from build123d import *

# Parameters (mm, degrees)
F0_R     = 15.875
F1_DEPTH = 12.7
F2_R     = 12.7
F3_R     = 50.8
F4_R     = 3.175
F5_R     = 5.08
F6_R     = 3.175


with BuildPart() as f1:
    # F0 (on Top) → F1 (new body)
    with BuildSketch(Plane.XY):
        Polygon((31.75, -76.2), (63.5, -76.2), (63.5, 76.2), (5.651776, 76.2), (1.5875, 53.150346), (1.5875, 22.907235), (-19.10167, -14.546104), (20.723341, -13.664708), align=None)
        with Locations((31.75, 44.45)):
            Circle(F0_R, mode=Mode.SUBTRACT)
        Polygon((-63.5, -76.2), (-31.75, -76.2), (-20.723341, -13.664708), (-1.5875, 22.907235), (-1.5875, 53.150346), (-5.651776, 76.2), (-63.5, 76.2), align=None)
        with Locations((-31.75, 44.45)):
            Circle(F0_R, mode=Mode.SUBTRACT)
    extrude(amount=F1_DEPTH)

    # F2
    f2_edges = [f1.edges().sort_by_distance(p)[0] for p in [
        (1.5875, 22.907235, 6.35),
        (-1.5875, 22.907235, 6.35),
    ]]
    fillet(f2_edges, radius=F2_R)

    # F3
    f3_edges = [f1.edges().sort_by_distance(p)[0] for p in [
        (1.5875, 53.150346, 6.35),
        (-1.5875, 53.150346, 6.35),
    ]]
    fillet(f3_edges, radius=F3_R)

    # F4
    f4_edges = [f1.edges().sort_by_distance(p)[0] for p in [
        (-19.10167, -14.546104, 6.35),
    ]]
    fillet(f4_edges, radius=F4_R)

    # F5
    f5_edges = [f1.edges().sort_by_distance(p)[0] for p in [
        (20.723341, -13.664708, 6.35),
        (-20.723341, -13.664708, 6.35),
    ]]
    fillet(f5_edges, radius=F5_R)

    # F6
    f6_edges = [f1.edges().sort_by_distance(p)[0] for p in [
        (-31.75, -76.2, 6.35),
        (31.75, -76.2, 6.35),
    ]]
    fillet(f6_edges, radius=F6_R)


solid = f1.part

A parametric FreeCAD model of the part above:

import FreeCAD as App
import Part
import Sketcher
Q = App.Units.Quantity


def edges_at(feature, points):
    """Names of the edges that pass closest to the given points."""
    edges = feature.Shape.Edges
    near = lambda p: min(range(len(edges)), key=lambda i: edges[i].distToShape(Part.Vertex(*p))[0])
    return sorted({f"Edge{near(p) + 1}" for p in points})


def add_polygon(sketch, points):
    """Adds a closed chain of lines whose ends are joined by coincident constraints."""
    first, n = sketch.GeometryCount, len(points)
    for a, b in zip(points, points[1:] + points[:1]):
        sketch.addGeometry(Part.LineSegment(App.Vector(*a, 0), App.Vector(*b, 0)), False)
    for i in range(n):
        sketch.addConstraint(Sketcher.Constraint("Coincident", first + i, 2, first + (i + 1) % n, 1))

doc = App.newDocument("Part")
body = doc.addObject("PartDesign::Body", "Body")
body.AllowCompound = True

sketch1 = doc.addObject("Sketcher::SketchObject", "Sketch")
body.addObject(sketch1)
sketch1.AttachmentSupport = (doc.XY_Plane, [""])
sketch1.MapMode = "FlatFace"
add_polygon(sketch1, [(32, -76), (64, -76), (64, 76), (6, 76), (2, 53), (2, 23), (-19, -15), (21, -14)])
sketch1.addGeometry(Part.Circle(App.Vector(32, 44, 0), App.Vector(0, 0, 1), 16), False)
add_polygon(sketch1, [(-64, -76), (-32, -76), (-21, -14), (-2, 23), (-2, 53), (-6, 76), (-64, 76)])
sketch1.addGeometry(Part.Circle(App.Vector(-32, 44, 0), App.Vector(0, 0, 1), 16), False)
sketch1.addConstraint(Sketcher.Constraint("Horizontal", 0))
sketch1.addConstraint(Sketcher.Constraint("Vertical", 1))
sketch1.addConstraint(Sketcher.Constraint("Horizontal", 2))
sketch1.addConstraint(Sketcher.Constraint("Vertical", 4))
sketch1.addConstraint(Sketcher.Constraint("Horizontal", 9))
sketch1.addConstraint(Sketcher.Constraint("Vertical", 12))
sketch1.addConstraint(Sketcher.Constraint("Horizontal", 14))
sketch1.addConstraint(Sketcher.Constraint("Vertical", 15))
sketch1.addConstraint(Sketcher.Constraint("Equal", 8, 16))
sketch1.addConstraint(Sketcher.Constraint("Symmetric", 0, 2, 14, 2, -1, 1))
sketch1.addConstraint(Sketcher.Constraint("Symmetric", 8, 3, 16, 3, -2))
sketch1.addConstraint(Sketcher.Constraint("Symmetric", 7, 2, 9, 2, -2))
sketch1.addConstraint(Sketcher.Constraint("Symmetric", 6, 2, 10, 2, -2))
sketch1.addConstraint(Sketcher.Constraint("Symmetric", 4, 2, 11, 2, -2))
sketch1.addConstraint(Sketcher.Constraint("Symmetric", 2, 2, 13, 2, -2))
sketch1.addConstraint(Sketcher.Constraint("Parallel", 3, 10))
sketch1.addConstraint(Sketcher.Constraint("Parallel", 7, 13))
sketch1.addConstraint(Sketcher.Constraint("Vertical", 8, 3, 7, 2))
sketch1.addConstraint(Sketcher.Constraint("Diameter", 8, Q("1.25 in")))
sketch1.addConstraint(Sketcher.Constraint("DistanceY", 1, 1, 1, 2, Q("6 in")))
sketch1.addConstraint(Sketcher.Constraint("Angle", 3, Q("-100 deg")))
sketch1.addConstraint(Sketcher.Constraint("Distance", 7, Q("2.5 in")))
sketch1.addConstraint(Sketcher.Constraint("DistanceX", 0, 1, 0, 2, Q("1.25 in")))
sketch1.addConstraint(Sketcher.Constraint("DistanceX", -1, 1, 0, 2, Q("2.5 in")))
sketch1.addConstraint(Sketcher.Constraint("DistanceY", -1, 1, 8, 3, Q("1.75 in")))
sketch1.addConstraint(Sketcher.Constraint("DistanceX", -1, 1, 3, 2, Q("0.0625 in")))
sketch1.addConstraint(Sketcher.Constraint("DistanceY", 4, 2, 4, 1, Q("30.243111 mm")))
sketch1.addConstraint(Sketcher.Constraint("Distance", 11, Q("41.275749 mm")))
sketch1.addConstraint(Sketcher.Constraint("DistanceX", 5, 2, -1, 1, Q("19.10167 mm")))
sketch1.addConstraint(Sketcher.Constraint("DistanceY", 5, 2, 4, 2, Q("37.453339 mm")))
pad1 = doc.addObject("PartDesign::Pad", "Pad")
body.addObject(pad1)
pad1.Profile = sketch1
pad1.Length = Q("0.5 in")
doc.recompute()

fillet = doc.addObject("PartDesign::Fillet", "Fillet")
body.addObject(fillet)
fillet.Base = (pad1, edges_at(pad1, [(1.587, 22.907, 6.35), (-1.587, 22.907, 6.35)]))
fillet.Radius = Q("0.5 in")
doc.recompute()

fillet2 = doc.addObject("PartDesign::Fillet", "Fillet001")
body.addObject(fillet2)
fillet2.Base = (fillet, edges_at(fillet, [(1.587, 53.15, 6.35), (-1.587, 53.15, 6.35)]))
fillet2.Radius = Q("2 in")
doc.recompute()

fillet3 = doc.addObject("PartDesign::Fillet", "Fillet002")
body.addObject(fillet3)
fillet3.Base = (fillet2, edges_at(fillet2, [(-19.102, -14.546, 6.35)]))
fillet3.Radius = Q("0.125 in")
doc.recompute()

fillet4 = doc.addObject("PartDesign::Fillet", "Fillet003")
body.addObject(fillet4)
fillet4.Base = (fillet3, edges_at(fillet3, [(20.723, -13.665, 6.35), (-20.723, -13.665, 6.35)]))
fillet4.Radius = Q("0.2 in")
doc.recompute()

fillet5 = doc.addObject("PartDesign::Fillet", "Fillet004")
body.addObject(fillet5)
fillet5.Base = (fillet4, edges_at(fillet4, [(-31.75, -76.2, 6.35), (31.75, -76.2, 6.35)]))
fillet5.Radius = Q("0.125 in")

doc.recompute()
